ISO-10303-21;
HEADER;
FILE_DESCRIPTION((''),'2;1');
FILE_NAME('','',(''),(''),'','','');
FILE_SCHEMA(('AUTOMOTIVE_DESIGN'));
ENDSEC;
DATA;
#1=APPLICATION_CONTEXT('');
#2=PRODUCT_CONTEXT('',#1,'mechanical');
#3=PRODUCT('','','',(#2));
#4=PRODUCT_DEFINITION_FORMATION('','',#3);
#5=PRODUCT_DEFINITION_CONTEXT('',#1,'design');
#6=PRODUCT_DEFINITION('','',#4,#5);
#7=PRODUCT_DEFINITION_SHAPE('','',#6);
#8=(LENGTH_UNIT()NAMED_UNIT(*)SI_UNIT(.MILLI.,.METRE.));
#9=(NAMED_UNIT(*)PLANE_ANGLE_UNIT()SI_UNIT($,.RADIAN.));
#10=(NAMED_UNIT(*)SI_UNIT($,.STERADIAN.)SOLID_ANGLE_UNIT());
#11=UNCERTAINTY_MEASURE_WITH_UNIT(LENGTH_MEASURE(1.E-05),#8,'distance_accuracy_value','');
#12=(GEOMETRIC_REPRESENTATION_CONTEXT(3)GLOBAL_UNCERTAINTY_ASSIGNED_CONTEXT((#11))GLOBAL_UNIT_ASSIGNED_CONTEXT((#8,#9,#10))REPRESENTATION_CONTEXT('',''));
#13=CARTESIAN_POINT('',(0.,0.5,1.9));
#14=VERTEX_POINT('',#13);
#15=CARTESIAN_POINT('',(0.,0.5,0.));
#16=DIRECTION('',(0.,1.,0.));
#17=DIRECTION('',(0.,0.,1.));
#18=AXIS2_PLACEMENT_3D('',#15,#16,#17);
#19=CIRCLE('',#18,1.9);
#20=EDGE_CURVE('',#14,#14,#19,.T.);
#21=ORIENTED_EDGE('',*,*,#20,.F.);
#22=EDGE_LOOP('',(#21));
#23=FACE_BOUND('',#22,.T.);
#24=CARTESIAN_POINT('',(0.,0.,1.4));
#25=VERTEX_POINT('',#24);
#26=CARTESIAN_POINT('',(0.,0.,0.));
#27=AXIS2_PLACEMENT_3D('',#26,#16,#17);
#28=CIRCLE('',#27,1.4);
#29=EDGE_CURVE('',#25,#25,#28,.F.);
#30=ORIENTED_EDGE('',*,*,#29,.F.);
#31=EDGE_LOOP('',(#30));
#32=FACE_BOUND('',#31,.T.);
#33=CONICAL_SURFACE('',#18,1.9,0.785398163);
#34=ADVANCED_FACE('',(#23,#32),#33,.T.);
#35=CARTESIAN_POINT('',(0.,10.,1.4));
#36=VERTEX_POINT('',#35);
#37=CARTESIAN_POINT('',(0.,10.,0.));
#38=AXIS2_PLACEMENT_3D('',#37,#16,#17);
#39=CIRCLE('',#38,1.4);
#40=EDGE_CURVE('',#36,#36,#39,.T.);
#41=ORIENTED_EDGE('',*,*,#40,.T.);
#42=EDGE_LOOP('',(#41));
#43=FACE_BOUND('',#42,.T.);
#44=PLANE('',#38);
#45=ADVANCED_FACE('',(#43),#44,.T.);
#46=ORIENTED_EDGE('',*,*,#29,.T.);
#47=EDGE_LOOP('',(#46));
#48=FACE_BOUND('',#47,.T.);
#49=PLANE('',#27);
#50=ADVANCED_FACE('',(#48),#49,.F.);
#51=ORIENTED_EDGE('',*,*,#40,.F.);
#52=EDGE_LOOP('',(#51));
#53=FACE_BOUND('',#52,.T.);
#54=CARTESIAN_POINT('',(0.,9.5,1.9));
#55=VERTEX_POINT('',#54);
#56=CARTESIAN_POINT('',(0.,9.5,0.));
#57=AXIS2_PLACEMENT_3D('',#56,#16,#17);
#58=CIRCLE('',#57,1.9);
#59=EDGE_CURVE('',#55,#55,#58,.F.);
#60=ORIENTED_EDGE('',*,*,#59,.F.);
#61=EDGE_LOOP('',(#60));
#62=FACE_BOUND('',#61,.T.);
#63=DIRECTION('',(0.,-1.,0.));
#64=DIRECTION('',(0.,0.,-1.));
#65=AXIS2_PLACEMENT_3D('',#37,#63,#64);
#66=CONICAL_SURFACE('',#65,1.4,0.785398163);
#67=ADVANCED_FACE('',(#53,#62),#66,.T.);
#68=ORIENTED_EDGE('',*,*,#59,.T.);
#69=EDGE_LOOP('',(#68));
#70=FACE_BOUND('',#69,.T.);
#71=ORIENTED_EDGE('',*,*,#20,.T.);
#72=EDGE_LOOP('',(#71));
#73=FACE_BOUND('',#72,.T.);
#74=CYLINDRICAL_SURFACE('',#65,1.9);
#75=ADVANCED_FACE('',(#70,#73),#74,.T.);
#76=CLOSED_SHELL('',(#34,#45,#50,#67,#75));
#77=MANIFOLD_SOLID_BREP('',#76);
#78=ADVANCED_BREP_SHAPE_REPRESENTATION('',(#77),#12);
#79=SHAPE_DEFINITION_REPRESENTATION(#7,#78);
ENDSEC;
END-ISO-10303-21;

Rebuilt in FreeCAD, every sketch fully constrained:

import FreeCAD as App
import Part
import Sketcher


def edges_at(feature, points):
    """Names of the edges that pass closest to the given points."""
    edges = feature.Shape.Edges
    near = lambda p: min(range(len(edges)), key=lambda i: edges[i].distToShape(Part.Vertex(*p))[0])
    return sorted({f"Edge{near(p) + 1}" for p in points})

doc = App.newDocument("Part")
body = doc.addObject("PartDesign::Body", "Body")

# Sketch on XZ plane
sketch1 = doc.addObject("Sketcher::SketchObject", "Sketch")
body.addObject(sketch1)
sketch1.AttachmentSupport = (doc.XZ_Plane, [""])
sketch1.MapMode = "FlatFace"
sketch1.addGeometry(Part.Circle(App.Vector(0, 0, 0), App.Vector(0, 0, 1), 1.9), False)
sketch1.addConstraint(Sketcher.Constraint("Coincident", 0, 3, -1, 1))
sketch1.addConstraint(Sketcher.Constraint("Diameter", 0, 3.8))
pad1 = doc.addObject("PartDesign::Pad", "Pad")
body.addObject(pad1)
pad1.Profile = sketch1
pad1.Length = 10
pad1.Reversed = True
doc.recompute()

chamfer = doc.addObject("PartDesign::Chamfer", "Chamfer")
body.addObject(chamfer)
chamfer.Base = (pad1, edges_at(pad1, [(0, 0, -1.9)]))
chamfer.Size = 0.5
doc.recompute()

chamfer2 = doc.addObject("PartDesign::Chamfer", "Chamfer001")
body.addObject(chamfer2)
chamfer2.Base = (chamfer, edges_at(chamfer, [(0, 10, -1.9)]))
chamfer2.Size = 0.5

doc.recompute()
